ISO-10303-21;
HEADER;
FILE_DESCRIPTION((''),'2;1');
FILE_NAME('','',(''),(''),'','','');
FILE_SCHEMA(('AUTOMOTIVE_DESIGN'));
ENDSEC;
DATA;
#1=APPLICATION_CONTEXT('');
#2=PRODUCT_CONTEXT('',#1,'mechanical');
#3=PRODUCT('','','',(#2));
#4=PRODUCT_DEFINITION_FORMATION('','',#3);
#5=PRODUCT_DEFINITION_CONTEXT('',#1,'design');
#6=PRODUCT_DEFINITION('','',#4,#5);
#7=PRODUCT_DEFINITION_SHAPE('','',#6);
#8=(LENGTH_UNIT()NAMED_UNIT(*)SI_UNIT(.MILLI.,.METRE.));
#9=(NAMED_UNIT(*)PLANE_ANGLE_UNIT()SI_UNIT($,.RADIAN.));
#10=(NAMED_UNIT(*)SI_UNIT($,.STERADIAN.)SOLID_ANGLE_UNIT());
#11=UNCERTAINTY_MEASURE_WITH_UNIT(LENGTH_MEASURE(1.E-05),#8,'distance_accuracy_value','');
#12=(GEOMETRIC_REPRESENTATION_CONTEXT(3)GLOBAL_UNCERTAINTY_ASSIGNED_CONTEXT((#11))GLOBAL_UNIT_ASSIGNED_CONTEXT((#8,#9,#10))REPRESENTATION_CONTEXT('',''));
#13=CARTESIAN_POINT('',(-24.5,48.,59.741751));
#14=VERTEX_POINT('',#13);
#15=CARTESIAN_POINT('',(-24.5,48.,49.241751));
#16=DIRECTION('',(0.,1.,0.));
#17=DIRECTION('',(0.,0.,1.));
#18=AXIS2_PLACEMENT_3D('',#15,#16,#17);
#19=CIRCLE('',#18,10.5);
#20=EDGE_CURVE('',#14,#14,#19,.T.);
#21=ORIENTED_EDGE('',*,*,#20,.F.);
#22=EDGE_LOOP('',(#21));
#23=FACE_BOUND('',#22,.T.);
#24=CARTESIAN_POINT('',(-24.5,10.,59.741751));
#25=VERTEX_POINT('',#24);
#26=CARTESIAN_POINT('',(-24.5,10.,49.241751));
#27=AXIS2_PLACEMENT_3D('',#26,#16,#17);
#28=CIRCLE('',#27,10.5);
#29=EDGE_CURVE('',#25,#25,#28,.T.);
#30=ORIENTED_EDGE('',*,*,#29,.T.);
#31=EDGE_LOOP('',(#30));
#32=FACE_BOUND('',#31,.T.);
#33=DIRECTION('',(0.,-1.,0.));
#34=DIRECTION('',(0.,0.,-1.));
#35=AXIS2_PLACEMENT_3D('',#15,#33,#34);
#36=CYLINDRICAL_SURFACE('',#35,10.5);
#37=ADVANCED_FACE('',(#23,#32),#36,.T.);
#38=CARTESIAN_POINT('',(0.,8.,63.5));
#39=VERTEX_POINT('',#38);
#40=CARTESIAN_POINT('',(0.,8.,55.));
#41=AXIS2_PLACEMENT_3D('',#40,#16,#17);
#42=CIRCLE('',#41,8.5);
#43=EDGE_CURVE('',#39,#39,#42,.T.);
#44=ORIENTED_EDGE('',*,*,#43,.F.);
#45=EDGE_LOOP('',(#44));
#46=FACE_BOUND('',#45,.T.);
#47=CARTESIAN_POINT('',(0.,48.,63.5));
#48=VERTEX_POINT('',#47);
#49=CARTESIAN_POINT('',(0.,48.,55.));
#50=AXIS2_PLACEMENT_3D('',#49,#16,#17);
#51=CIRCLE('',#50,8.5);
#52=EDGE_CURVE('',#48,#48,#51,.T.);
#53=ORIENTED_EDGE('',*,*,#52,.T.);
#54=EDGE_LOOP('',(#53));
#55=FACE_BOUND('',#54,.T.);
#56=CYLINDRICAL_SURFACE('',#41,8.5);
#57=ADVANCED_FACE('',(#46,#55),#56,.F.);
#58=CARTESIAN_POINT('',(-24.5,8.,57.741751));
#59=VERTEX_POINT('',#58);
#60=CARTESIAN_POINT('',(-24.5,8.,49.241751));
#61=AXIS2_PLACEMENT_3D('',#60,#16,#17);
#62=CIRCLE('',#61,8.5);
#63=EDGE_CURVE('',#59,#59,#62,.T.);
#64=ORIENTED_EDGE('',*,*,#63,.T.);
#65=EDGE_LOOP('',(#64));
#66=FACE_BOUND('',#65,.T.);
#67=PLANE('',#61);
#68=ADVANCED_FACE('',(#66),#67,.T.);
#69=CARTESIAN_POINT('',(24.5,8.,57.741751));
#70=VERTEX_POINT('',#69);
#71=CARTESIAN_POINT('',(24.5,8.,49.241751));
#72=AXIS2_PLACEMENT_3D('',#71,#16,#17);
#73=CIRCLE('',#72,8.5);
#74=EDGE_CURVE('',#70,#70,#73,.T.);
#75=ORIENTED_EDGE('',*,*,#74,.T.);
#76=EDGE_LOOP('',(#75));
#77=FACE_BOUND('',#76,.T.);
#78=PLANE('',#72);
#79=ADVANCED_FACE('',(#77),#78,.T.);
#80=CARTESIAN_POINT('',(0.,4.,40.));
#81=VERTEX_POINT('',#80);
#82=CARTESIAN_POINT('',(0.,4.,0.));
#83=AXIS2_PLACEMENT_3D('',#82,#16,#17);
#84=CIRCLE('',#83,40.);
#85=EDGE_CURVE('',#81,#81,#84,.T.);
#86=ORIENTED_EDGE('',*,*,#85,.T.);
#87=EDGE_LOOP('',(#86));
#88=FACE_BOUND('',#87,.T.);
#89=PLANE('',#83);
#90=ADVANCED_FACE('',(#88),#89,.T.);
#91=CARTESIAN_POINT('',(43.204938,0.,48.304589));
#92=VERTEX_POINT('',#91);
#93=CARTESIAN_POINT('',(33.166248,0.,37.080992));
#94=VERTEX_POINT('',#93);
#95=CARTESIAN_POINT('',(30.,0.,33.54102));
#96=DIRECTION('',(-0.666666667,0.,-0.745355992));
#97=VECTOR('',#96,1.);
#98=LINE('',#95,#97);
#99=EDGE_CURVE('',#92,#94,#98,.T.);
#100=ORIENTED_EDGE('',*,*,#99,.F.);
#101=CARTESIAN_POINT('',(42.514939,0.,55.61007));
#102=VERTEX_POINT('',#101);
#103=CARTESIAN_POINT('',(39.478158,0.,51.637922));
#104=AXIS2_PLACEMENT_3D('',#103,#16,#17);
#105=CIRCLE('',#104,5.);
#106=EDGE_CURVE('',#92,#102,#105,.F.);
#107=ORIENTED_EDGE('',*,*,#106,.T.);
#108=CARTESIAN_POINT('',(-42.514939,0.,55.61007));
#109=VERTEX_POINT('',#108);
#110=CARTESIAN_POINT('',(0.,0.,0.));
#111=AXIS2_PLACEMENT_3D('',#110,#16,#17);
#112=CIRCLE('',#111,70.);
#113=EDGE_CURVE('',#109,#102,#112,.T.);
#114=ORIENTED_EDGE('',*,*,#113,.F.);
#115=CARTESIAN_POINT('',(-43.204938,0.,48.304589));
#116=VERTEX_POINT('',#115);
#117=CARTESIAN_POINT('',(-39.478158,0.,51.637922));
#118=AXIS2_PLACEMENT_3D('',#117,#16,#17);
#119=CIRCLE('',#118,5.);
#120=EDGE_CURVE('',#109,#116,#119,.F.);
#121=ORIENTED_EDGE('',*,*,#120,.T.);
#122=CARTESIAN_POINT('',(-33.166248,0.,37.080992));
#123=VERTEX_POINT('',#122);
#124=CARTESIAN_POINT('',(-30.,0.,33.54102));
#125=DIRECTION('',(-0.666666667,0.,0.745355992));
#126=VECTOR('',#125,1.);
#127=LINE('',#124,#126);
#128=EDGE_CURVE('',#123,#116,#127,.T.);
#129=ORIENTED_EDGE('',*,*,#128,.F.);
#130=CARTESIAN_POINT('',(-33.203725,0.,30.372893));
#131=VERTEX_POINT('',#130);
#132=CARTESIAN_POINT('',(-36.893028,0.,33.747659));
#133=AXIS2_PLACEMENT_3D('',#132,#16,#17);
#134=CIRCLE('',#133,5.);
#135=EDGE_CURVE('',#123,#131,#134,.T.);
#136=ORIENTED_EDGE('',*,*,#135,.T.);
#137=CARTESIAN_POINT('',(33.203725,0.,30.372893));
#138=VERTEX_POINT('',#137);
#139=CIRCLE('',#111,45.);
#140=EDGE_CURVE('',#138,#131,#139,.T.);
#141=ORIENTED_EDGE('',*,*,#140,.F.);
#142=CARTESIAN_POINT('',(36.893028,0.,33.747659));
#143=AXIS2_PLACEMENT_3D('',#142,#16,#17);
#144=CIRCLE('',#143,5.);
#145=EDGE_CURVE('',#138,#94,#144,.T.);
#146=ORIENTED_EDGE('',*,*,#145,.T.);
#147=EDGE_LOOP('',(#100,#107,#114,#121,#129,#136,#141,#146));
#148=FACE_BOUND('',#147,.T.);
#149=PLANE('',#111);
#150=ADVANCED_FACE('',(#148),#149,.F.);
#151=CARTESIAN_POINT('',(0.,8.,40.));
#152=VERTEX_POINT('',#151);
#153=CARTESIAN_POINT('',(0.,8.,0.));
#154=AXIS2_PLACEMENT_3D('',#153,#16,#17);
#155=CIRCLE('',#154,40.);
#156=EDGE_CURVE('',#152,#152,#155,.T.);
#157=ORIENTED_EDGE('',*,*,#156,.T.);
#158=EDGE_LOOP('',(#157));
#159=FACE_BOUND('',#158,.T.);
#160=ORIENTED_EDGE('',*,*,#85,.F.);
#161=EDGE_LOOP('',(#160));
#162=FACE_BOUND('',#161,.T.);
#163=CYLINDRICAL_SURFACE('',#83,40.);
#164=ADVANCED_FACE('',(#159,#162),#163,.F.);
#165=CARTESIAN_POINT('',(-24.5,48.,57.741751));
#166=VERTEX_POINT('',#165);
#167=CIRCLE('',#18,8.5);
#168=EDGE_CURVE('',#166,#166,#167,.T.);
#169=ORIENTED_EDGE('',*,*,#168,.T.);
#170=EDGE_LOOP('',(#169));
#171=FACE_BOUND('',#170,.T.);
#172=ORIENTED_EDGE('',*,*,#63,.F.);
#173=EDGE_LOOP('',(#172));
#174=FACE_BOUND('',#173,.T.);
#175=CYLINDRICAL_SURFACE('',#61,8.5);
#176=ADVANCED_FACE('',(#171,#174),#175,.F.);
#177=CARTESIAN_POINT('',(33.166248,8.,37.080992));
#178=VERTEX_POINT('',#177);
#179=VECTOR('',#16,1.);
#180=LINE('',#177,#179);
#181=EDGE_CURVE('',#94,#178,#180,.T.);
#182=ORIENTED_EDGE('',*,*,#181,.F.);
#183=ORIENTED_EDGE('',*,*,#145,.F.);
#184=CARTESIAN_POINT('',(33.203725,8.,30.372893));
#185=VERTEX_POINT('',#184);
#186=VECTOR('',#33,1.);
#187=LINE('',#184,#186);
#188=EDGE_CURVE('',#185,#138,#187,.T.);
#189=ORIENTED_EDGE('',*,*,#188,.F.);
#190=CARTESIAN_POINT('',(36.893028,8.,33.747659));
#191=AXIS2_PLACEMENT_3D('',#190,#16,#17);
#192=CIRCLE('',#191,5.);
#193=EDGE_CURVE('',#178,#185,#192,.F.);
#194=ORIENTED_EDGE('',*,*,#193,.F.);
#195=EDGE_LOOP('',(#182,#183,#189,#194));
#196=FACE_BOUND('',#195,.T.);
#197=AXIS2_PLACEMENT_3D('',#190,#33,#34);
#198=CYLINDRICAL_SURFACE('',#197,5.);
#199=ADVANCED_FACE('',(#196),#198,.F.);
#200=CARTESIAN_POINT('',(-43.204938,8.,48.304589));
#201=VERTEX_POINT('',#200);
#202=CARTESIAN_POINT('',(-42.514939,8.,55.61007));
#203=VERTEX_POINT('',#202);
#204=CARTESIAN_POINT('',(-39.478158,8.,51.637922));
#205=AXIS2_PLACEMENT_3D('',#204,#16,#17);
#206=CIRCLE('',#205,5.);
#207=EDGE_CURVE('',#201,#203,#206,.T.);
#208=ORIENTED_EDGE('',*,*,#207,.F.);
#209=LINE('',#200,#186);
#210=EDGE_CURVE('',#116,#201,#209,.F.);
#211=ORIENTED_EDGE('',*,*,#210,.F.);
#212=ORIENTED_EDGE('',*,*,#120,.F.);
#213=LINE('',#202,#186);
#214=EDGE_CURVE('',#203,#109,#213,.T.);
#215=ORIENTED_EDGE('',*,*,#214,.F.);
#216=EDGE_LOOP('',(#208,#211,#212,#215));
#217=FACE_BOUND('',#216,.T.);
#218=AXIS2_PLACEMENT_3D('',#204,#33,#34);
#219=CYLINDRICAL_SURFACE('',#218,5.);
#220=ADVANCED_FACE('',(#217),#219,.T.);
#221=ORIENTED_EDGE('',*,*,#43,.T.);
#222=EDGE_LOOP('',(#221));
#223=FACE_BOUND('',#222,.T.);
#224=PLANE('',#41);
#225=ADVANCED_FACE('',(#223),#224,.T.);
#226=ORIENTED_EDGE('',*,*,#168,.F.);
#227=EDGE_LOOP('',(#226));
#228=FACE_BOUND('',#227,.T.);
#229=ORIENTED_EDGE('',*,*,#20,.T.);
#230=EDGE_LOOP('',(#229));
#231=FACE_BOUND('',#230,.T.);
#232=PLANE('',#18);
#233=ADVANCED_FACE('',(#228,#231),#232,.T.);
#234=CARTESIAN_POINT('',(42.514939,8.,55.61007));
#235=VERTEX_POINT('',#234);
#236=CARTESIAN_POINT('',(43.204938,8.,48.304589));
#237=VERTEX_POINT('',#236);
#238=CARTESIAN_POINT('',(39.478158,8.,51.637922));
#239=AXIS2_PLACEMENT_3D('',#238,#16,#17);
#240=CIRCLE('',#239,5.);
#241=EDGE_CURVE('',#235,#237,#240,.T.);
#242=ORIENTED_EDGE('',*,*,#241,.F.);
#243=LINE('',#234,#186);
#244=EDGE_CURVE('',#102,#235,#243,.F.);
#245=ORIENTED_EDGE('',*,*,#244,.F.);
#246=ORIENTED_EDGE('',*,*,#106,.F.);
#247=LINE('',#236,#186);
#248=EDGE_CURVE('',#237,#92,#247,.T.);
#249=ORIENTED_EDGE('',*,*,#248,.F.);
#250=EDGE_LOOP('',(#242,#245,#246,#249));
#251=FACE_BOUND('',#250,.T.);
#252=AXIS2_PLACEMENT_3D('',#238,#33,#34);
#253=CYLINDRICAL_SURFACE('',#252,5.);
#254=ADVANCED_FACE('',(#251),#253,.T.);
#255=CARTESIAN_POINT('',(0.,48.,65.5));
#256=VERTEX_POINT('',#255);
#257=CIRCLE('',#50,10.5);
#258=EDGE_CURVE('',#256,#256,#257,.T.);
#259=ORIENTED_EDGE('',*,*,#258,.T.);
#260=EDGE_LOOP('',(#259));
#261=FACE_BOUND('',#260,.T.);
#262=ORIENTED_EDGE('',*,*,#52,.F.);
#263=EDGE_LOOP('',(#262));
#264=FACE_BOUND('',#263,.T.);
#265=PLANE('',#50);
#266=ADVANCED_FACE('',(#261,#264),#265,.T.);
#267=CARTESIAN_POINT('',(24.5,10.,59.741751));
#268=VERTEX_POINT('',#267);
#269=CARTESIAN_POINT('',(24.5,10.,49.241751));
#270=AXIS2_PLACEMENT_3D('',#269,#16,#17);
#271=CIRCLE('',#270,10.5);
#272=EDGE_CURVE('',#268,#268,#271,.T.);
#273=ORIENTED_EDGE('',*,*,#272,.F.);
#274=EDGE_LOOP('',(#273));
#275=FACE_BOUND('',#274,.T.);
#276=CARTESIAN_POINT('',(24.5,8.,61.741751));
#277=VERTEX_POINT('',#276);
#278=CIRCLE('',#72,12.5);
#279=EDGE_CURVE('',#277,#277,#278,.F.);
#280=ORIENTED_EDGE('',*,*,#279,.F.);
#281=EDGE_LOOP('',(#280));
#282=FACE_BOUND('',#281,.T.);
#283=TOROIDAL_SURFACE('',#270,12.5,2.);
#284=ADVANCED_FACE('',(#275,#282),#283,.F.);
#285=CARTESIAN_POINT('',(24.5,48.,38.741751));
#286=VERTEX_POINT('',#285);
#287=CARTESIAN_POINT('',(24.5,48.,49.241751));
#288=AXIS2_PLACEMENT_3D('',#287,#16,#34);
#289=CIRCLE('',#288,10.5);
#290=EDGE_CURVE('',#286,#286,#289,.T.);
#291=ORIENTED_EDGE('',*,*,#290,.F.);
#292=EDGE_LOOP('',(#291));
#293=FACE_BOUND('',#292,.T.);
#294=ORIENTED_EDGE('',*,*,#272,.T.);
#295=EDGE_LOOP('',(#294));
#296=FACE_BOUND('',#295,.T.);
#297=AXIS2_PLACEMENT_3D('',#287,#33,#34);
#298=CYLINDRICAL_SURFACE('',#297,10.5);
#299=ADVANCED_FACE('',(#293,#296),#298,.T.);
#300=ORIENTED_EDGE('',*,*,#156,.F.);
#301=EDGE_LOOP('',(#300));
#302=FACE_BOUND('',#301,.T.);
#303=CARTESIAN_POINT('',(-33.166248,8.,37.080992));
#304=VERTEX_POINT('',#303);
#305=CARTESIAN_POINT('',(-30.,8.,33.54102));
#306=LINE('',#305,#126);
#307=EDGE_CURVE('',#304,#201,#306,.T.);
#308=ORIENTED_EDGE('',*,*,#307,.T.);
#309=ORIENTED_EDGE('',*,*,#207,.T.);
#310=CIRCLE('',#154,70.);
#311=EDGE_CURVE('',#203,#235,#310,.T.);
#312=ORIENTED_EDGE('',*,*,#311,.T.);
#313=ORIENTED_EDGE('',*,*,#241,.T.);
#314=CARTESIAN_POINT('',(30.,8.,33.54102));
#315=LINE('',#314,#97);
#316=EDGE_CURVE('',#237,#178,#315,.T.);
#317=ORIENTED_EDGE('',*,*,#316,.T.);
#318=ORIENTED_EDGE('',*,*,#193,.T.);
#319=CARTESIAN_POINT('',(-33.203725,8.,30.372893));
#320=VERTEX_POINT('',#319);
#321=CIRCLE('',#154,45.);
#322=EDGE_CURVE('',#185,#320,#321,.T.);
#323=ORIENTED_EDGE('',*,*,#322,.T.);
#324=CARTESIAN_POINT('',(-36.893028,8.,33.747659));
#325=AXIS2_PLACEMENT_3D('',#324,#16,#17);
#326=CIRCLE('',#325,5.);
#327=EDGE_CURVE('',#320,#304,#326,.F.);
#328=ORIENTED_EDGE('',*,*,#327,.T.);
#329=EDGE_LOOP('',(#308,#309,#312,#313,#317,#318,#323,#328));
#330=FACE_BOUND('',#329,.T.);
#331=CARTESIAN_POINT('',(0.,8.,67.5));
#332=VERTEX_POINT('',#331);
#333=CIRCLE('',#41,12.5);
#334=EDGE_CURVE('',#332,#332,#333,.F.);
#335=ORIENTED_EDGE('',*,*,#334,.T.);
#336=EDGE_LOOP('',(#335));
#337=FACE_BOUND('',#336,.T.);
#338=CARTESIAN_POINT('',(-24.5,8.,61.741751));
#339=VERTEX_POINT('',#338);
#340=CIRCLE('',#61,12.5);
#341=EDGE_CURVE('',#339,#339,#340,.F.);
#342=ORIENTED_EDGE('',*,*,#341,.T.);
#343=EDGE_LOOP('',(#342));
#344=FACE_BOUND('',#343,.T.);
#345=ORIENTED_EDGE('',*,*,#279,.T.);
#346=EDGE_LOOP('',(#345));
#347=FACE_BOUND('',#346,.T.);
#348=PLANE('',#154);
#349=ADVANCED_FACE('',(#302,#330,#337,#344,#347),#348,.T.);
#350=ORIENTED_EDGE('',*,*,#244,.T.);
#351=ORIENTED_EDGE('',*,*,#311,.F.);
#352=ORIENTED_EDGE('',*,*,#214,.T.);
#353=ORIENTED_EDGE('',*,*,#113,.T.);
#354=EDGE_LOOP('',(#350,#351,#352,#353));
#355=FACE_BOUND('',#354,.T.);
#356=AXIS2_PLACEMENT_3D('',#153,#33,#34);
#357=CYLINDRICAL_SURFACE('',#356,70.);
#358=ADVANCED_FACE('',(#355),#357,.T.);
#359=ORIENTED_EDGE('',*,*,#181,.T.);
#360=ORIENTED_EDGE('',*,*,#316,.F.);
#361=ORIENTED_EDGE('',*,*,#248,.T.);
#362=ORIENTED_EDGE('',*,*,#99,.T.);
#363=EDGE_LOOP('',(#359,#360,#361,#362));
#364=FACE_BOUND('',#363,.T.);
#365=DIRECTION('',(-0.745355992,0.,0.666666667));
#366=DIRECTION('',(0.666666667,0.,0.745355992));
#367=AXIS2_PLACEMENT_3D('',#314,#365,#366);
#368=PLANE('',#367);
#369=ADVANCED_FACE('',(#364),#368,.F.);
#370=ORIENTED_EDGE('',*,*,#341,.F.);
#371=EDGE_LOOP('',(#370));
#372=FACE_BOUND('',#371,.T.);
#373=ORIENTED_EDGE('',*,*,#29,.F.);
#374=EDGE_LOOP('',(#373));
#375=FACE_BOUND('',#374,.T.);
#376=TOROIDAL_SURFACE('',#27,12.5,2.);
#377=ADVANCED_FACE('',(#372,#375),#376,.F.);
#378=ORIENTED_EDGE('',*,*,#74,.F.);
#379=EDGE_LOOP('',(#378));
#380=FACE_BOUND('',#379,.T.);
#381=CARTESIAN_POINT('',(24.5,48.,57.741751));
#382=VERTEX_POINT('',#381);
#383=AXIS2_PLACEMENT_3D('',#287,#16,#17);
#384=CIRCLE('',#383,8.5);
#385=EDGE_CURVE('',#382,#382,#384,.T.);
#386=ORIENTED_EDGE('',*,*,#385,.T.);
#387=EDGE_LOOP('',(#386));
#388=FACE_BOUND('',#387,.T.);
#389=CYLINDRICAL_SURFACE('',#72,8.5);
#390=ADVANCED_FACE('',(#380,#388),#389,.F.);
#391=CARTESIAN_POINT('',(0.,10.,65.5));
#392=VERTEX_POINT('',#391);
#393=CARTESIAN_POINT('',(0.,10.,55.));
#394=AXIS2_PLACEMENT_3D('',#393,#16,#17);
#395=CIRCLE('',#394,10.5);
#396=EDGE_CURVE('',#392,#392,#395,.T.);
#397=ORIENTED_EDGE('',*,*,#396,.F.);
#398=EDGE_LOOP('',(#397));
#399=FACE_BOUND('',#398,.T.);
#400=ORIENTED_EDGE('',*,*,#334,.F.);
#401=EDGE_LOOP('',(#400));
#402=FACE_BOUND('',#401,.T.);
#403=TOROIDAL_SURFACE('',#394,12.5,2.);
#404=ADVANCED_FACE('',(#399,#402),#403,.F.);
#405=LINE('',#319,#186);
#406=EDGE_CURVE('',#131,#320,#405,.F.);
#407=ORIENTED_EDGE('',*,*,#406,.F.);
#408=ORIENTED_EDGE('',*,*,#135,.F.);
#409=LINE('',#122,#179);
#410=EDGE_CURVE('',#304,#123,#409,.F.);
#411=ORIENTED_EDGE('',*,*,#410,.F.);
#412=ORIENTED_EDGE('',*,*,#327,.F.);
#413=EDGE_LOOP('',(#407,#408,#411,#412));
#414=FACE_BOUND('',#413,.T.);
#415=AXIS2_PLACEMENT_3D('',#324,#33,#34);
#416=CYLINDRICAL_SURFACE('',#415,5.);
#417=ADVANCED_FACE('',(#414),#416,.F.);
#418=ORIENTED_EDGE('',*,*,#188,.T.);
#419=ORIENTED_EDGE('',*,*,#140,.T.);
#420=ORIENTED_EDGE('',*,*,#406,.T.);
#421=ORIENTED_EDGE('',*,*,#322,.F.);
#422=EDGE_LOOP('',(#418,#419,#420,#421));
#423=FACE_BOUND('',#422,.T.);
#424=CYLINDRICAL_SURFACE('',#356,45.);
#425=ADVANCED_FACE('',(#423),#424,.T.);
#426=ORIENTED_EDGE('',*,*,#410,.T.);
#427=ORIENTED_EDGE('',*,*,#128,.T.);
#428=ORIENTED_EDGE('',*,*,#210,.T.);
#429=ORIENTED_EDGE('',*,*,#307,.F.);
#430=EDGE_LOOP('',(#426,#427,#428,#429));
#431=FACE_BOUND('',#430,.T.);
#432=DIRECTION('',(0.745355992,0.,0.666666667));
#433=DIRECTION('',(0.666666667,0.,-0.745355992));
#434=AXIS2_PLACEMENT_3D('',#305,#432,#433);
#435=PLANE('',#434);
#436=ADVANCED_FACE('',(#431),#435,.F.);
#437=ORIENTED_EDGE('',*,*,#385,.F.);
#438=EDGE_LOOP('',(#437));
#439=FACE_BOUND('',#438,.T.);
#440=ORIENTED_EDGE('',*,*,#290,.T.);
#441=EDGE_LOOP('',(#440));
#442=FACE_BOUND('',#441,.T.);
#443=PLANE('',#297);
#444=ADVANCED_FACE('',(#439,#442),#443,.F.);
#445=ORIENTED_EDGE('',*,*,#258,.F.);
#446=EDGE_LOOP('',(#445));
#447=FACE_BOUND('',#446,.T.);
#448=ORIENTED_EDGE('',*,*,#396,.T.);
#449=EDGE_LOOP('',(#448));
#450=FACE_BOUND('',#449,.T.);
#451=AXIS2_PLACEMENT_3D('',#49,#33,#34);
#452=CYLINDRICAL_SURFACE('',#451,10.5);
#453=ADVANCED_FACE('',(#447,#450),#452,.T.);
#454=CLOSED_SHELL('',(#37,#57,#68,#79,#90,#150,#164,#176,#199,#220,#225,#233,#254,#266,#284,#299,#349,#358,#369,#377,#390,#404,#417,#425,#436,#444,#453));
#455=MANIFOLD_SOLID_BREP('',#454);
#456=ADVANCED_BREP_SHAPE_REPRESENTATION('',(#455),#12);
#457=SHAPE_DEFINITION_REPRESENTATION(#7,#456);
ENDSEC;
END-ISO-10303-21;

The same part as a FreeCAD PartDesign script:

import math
import FreeCAD as App
import Part
import Sketcher
from FreeCAD import Vector
Q = App.Units.Quantity


def edges_at(feature, points):
    """Names of the edges that pass closest to the given points."""
    edges = feature.Shape.Edges
    near = lambda p: min(range(len(edges)), key=lambda i: edges[i].distToShape(Part.Vertex(*p))[0])
    return sorted({f"Edge{near(p) + 1}" for p in points})

doc = App.newDocument("Part")
params = doc.addObject("Spreadsheet::Sheet", "Params")
for row, (alias, value) in enumerate([
    ("sketch1_radius", "70 mm"),
    ("sketch1_radius2", "45 mm"),
    ("pad1_length", "8 mm"),
    ("sketch2_diameter", "80 mm"),
    ("pocket1_length", "4 mm"),
    ("sketch3_diameter", "21 mm"),
    ("pad2_length", "40 mm"),
    ("sketch4_diameter", "17 mm"),
    ("pocket2_length", "40 mm"),
    ("fillet_radius", "5 mm"),
    ("fillet2_radius", "2 mm"),
], start=1):
    params.set(f"A{row}", alias)
    params.set(f"B{row}", "=" + value)
    params.setAlias(f"B{row}", alias)

body = doc.addObject("PartDesign::Body", "Body")

sketch1 = body.newObject("Sketcher::SketchObject", "Sketch")
sketch1.AttachmentSupport = (doc.getObject("XZ_Plane"), [""])
sketch1.MapMode = "FlatFace"
sketch1.addGeometry([
    Part.LineSegment(Vector(-30, 34, 0), Vector(-47, 52, 0)),
    Part.ArcOfCircle(Part.Circle(Vector(0, 0, 0), Vector(0, 0, 1), 70), math.radians(48), math.radians(132)),
    Part.LineSegment(Vector(47, 52, 0), Vector(30, 34, 0)),
    Part.ArcOfCircle(Part.Circle(Vector(0, 0, 0), Vector(0, 0, 1), 45), math.radians(132), math.radians(408)),
], False)
sketch1.addConstraint([
    Sketcher.Constraint("Coincident", 0, 2, 1, 2),
    Sketcher.Constraint("Coincident", 1, 1, 2, 1),
    Sketcher.Constraint("Coincident", 2, 2, 3, 2),
    Sketcher.Constraint("Coincident", 3, 1, 0, 1),
    Sketcher.Constraint("Coincident", 1, 3, -1, 1),
    Sketcher.Constraint("Coincident", 3, 3, -1, 1),
    Sketcher.Constraint("Horizontal", 0, 2, 1, 1),
    Sketcher.Constraint("Horizontal", 2, 2, 3, 1),
    Sketcher.Constraint("Radius", 1, Q("70 mm")),
    Sketcher.Constraint("Radius", 3, Q("45 mm")),
    Sketcher.Constraint("DistanceX", -1, 1, 2, 2, Q("30 mm")),
    Sketcher.Constraint("DistanceY", 2, 2, 1, 1, Q("18.6339 mm")),
])
sketch1.setExpression("Constraints[8]", "Params.sketch1_radius")
sketch1.setExpression("Constraints[9]", "Params.sketch1_radius2")
pad1 = body.newObject("PartDesign::Pad", "Pad")
pad1.Profile = sketch1
pad1.setExpression("Length", "Params.pad1_length")
pad1.Reversed = True

sketch2 = body.newObject("Sketcher::SketchObject", "Sketch001")
sketch2.AttachmentSupport = (doc.getObject("XZ_Plane"), [""])
sketch2.MapMode = "FlatFace"
sketch2.AttachmentOffset = App.Placement(Vector(0, 0, -8), App.Rotation())
sketch2.addGeometry(Part.Circle(Vector(0, 0, 0), Vector(0, 0, 1), 40), False)
sketch2.addConstraint([
    Sketcher.Constraint("Coincident", 0, 3, -1, 1),
    Sketcher.Constraint("Diameter", 0, Q("80 mm")),
])
sketch2.setExpression("Constraints[1]", "Params.sketch2_diameter")
pocket1 = body.newObject("PartDesign::Pocket", "Pocket")
pocket1.Profile = sketch2
pocket1.setExpression("Length", "Params.pocket1_length")
pocket1.Reversed = True

sketch3 = body.newObject("Sketcher::SketchObject", "Sketch002")
sketch3.AttachmentSupport = (doc.getObject("XZ_Plane"), [""])
sketch3.MapMode = "FlatFace"
sketch3.AttachmentOffset = App.Placement(Vector(0, 0, -8), App.Rotation())
sketch3.addGeometry([
    Part.Circle(Vector(0, 55, 0), Vector(0, 0, 1), 10),
    Part.Circle(Vector(-24, 49, 0), Vector(0, 0, 1), 10),
    Part.Circle(Vector(24, 49, 0), Vector(0, 0, 1), 10),
], False)
sketch3.addConstraint([
    Sketcher.Constraint("Equal", 0, 1),
    Sketcher.Constraint("Equal", 1, 2),
    Sketcher.Constraint("Symmetric", 1, 3, 2, 3, -2),
    Sketcher.Constraint("PointOnObject", 0, 3, -2),
    Sketcher.Constraint("Diameter", 0, Q("21 mm")),
    Sketcher.Constraint("DistanceY", -1, 1, 0, 3, Q("55 mm")),
    Sketcher.Constraint("DistanceX", 1, 3, 2, 3, Q("49 mm")),
    Sketcher.Constraint("DistanceY", -1, 1, 1, 3, Q("49.241751 mm")),
])
sketch3.setExpression("Constraints[4]", "Params.sketch3_diameter")
pad2 = body.newObject("PartDesign::Pad", "Pad001")
pad2.Profile = sketch3
pad2.setExpression("Length", "Params.pad2_length")
pad2.Reversed = True

sketch4 = body.newObject("Sketcher::SketchObject", "Sketch003")
sketch4.AttachmentSupport = (doc.getObject("XZ_Plane"), [""])
sketch4.MapMode = "FlatFace"
sketch4.AttachmentOffset = App.Placement(Vector(0, 0, -48), App.Rotation())
sketch4.addGeometry([
    Part.Circle(Vector(0, 55, 0), Vector(0, 0, 1), 8),
    Part.Circle(Vector(-24, 49, 0), Vector(0, 0, 1), 8),
    Part.Circle(Vector(24, 49, 0), Vector(0, 0, 1), 8),
], False)
sketch4.addConstraint([
    Sketcher.Constraint("Equal", 0, 1),
    Sketcher.Constraint("Equal", 1, 2),
    Sketcher.Constraint("Symmetric", 1, 3, 2, 3, -2),
    Sketcher.Constraint("PointOnObject", 0, 3, -2),
    Sketcher.Constraint("Diameter", 0, Q("17 mm")),
    Sketcher.Constraint("DistanceY", -1, 1, 0, 3, Q("55 mm")),
    Sketcher.Constraint("DistanceX", 1, 3, 2, 3, Q("49 mm")),
    Sketcher.Constraint("DistanceY", -1, 1, 1, 3, Q("49.241751 mm")),
])
sketch4.setExpression("Constraints[4]", "Params.sketch4_diameter")
pocket2 = body.newObject("PartDesign::Pocket", "Pocket001")
pocket2.Profile = sketch4
pocket2.setExpression("Length", "Params.pocket2_length")
pocket2.Reversed = True
doc.recompute()

fillet = body.newObject("PartDesign::Fillet", "Fillet")
fillet.Base = (pocket2, edges_at(pocket2, [
    (30, 4, 33.541),
    (46.667, 4, 52.175),
    (-46.667, 4, 52.175),
    (-30, 4, 33.541),
]))
fillet.setExpression("Radius", "Params.fillet_radius")
doc.recompute()

fillet2 = body.newObject("PartDesign::Fillet", "Fillet001")
fillet2.Base = (fillet, edges_at(fillet, [(0, 8, 44.5), (-24.5, 8, 38.742), (24.5, 8, 59.742)]))
fillet2.setExpression("Radius", "Params.fillet2_radius")

doc.recompute()
